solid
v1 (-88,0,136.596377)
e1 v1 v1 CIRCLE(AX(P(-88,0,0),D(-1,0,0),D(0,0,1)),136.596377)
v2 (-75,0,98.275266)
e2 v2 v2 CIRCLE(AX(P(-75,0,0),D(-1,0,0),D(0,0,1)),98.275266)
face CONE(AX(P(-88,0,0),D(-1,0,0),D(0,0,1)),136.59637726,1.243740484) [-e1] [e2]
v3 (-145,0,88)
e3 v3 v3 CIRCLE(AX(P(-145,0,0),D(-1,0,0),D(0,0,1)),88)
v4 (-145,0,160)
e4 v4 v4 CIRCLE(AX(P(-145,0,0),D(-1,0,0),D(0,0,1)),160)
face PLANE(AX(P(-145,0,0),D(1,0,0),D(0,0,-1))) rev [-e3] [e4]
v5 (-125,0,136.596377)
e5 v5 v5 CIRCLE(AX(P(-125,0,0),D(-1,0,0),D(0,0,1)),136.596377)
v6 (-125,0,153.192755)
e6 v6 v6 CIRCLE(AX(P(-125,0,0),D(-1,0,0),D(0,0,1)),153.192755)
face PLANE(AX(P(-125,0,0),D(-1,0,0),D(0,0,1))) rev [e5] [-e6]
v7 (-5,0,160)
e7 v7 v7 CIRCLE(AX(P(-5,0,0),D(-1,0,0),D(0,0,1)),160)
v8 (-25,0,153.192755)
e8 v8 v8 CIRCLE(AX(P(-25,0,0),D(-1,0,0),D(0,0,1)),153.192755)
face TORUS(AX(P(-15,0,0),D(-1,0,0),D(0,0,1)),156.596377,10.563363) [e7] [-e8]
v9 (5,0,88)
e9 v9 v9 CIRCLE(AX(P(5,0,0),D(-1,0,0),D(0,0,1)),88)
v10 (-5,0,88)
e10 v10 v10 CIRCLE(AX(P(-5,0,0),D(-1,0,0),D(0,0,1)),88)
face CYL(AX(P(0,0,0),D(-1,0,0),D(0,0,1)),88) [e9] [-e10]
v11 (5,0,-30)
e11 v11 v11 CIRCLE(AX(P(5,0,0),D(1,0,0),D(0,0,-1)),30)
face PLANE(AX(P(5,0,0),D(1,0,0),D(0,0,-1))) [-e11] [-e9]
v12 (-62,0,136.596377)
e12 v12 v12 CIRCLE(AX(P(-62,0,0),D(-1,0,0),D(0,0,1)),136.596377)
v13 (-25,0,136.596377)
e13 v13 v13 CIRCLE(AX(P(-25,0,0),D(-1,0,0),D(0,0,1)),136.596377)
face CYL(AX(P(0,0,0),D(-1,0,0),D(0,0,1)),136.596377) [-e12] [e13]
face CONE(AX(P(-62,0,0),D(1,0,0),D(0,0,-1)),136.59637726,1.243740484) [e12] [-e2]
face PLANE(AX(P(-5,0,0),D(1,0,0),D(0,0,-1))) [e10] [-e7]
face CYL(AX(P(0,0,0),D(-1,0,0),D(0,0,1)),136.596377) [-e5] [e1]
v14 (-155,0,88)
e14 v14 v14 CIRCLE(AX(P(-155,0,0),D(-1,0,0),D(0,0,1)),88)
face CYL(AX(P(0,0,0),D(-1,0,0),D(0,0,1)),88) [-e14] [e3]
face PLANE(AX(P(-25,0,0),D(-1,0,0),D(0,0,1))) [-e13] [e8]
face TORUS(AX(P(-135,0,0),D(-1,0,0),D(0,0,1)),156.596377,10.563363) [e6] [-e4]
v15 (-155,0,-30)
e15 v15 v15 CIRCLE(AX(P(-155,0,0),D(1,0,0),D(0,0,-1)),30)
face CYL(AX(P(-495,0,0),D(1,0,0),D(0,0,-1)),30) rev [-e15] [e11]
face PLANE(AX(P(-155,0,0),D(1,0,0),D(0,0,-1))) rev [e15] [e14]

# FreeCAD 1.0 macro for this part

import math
import FreeCAD as App
import Part
import Sketcher
from FreeCAD import Vector

doc = App.newDocument("Part")
body = doc.addObject("PartDesign::Body", "Body")

# Sketch on XY plane
sketch1 = body.newObject("Sketcher::SketchObject", "Sketch")
sketch1.AttachmentSupport = (doc.getObject("XY_Plane"), [""])
sketch1.MapMode = "FlatFace"
sketch1.addGeometry([
    Part.LineSegment(Vector(-155, 88, 0), Vector(-155, 0, 0)),  # 0
    Part.LineSegment(Vector(-155, 0, 0), Vector(5, 0, 0)),  # 1
    Part.LineSegment(Vector(5, 0, 0), Vector(5, 88, 0)),  # 2
    Part.LineSegment(Vector(5, 88, 0), Vector(-5, 88, 0)),  # 3
    Part.LineSegment(Vector(-5, 88, 0), Vector(-5, 160, 0)),  # 4
    Part.ArcOfCircle(Part.Circle(Vector(-15, 157, 0), Vector(0, 0, 1), 11), math.radians(19), math.radians(199)),  # 5
    Part.LineSegment(Vector(-25, 153, 0), Vector(-25, 137, 0)),  # 6
    Part.LineSegment(Vector(-25, 137, 0), Vector(-62, 137, 0)),  # 7
    Part.LineSegment(Vector(-62, 137, 0), Vector(-75, 98, 0)),  # 8
    Part.LineSegment(Vector(-75, 98, 0), Vector(-88, 137, 0)),  # 9
    Part.LineSegment(Vector(-88, 137, 0), Vector(-125, 137, 0)),  # 10
    Part.LineSegment(Vector(-125, 137, 0), Vector(-125, 153, 0)),  # 11
    Part.ArcOfCircle(Part.Circle(Vector(-135, 157, 0), Vector(0, 0, 1), 11), math.radians(-19), math.radians(161)),  # 12
    Part.LineSegment(Vector(-145, 160, 0), Vector(-145, 88, 0)),  # 13
    Part.LineSegment(Vector(-145, 88, 0), Vector(-155, 88, 0)),  # 14
], False)
sketch1.addConstraint([
    Sketcher.Constraint("Coincident", 0, 2, 1, 1),
    Sketcher.Constraint("Coincident", 1, 2, 2, 1),
    Sketcher.Constraint("Coincident", 2, 2, 3, 1),
    Sketcher.Constraint("Coincident", 3, 2, 4, 1),
    Sketcher.Constraint("Coincident", 4, 2, 5, 1),
    Sketcher.Constraint("Coincident", 5, 2, 6, 1),
    Sketcher.Constraint("Coincident", 6, 2, 7, 1),
    Sketcher.Constraint("Coincident", 7, 2, 8, 1),
    Sketcher.Constraint("Coincident", 8, 2, 9, 1),
    Sketcher.Constraint("Coincident", 9, 2, 10, 1),
    Sketcher.Constraint("Coincident", 10, 2, 11, 1),
    Sketcher.Constraint("Coincident", 11, 2, 12, 1),
    Sketcher.Constraint("Coincident", 12, 2, 13, 1),
    Sketcher.Constraint("Coincident", 13, 2, 14, 1),
    Sketcher.Constraint("Coincident", 14, 2, 0, 1),
    Sketcher.Constraint("Vertical", 0),
    Sketcher.Constraint("Horizontal", 1),
    Sketcher.Constraint("Vertical", 2),
    Sketcher.Constraint("Horizontal", 3),
    Sketcher.Constraint("Vertical", 4),
    Sketcher.Constraint("Vertical", 6),
    Sketcher.Constraint("Horizontal", 7),
    Sketcher.Constraint("Horizontal", 10),
    Sketcher.Constraint("Vertical", 11),
    Sketcher.Constraint("Vertical", 13),
    Sketcher.Constraint("Horizontal", 14),
    Sketcher.Constraint("Equal", 5, 12),
    Sketcher.Constraint("PointOnObject", 0, 2, -1),
    Sketcher.Constraint("Horizontal", 5, 3, 12, 3),
    Sketcher.Constraint("Horizontal", 7, 2, 9, 2),
    Sketcher.Constraint("Horizontal", 5, 2, 11, 2),
    Sketcher.Constraint("Horizontal", 4, 2, 12, 2),
    Sketcher.Constraint("Horizontal", 3, 2, 13, 2),
    Sketcher.Constraint("Equal", 7, 10),
    Sketcher.Constraint("Equal", 3, 14),
    Sketcher.Constraint("Equal", 8, 9),
    Sketcher.Constraint("DistanceX", 1, 1, 1, 2, 160.0),
    Sketcher.Constraint("DistanceX", 3, 2, 3, 1, 10.0),
    Sketcher.Constraint("DistanceX", 7, 2, 7, 1, 37.0),
    Sketcher.Constraint("DistanceY", 0, 2, 0, 1, 88.0),
    Sketcher.Constraint("DistanceY", 4, 1, 4, 2, 72.0),
    Sketcher.Constraint("DistanceX", 5, 3, -1, 1, 15.0),
    Sketcher.Constraint("DistanceX", 12, 3, -1, 1, 135.0),
    Sketcher.Constraint("DistanceX", 5, 2, -1, 1, 25.0),
    Sketcher.Constraint("DistanceY", 6, 2, 5, 3, 20.0),
    Sketcher.Constraint("Radius", 5, 10.563363),
    Sketcher.Constraint("Distance", 8, 40.466129),
])
revolution = body.newObject("PartDesign::Revolution", "Revolution")
revolution.Profile = sketch1
revolution.ReferenceAxis = (sketch1, ["H_Axis"])
revolution.Angle = 360

# Sketch on YZ plane
sketch2 = body.newObject("Sketcher::SketchObject", "Sketch001")
sketch2.AttachmentSupport = (doc.getObject("YZ_Plane"), [""])
sketch2.MapMode = "FlatFace"
sketch2.AttachmentOffset = App.Placement(Vector(0, 0, 5), App.Rotation())
sketch2.addGeometry(Part.Circle(Vector(0, 0, 0), Vector(0, 0, 1), 30), False)
sketch2.addConstraint([
    Sketcher.Constraint("Coincident", 0, 3, -1, 1),
    Sketcher.Constraint("Diameter", 0, 60.0),
])
pocket1 = body.newObject("PartDesign::Pocket", "Pocket")
pocket1.Profile = sketch2
pocket1.Length = 500

doc.recompute()
